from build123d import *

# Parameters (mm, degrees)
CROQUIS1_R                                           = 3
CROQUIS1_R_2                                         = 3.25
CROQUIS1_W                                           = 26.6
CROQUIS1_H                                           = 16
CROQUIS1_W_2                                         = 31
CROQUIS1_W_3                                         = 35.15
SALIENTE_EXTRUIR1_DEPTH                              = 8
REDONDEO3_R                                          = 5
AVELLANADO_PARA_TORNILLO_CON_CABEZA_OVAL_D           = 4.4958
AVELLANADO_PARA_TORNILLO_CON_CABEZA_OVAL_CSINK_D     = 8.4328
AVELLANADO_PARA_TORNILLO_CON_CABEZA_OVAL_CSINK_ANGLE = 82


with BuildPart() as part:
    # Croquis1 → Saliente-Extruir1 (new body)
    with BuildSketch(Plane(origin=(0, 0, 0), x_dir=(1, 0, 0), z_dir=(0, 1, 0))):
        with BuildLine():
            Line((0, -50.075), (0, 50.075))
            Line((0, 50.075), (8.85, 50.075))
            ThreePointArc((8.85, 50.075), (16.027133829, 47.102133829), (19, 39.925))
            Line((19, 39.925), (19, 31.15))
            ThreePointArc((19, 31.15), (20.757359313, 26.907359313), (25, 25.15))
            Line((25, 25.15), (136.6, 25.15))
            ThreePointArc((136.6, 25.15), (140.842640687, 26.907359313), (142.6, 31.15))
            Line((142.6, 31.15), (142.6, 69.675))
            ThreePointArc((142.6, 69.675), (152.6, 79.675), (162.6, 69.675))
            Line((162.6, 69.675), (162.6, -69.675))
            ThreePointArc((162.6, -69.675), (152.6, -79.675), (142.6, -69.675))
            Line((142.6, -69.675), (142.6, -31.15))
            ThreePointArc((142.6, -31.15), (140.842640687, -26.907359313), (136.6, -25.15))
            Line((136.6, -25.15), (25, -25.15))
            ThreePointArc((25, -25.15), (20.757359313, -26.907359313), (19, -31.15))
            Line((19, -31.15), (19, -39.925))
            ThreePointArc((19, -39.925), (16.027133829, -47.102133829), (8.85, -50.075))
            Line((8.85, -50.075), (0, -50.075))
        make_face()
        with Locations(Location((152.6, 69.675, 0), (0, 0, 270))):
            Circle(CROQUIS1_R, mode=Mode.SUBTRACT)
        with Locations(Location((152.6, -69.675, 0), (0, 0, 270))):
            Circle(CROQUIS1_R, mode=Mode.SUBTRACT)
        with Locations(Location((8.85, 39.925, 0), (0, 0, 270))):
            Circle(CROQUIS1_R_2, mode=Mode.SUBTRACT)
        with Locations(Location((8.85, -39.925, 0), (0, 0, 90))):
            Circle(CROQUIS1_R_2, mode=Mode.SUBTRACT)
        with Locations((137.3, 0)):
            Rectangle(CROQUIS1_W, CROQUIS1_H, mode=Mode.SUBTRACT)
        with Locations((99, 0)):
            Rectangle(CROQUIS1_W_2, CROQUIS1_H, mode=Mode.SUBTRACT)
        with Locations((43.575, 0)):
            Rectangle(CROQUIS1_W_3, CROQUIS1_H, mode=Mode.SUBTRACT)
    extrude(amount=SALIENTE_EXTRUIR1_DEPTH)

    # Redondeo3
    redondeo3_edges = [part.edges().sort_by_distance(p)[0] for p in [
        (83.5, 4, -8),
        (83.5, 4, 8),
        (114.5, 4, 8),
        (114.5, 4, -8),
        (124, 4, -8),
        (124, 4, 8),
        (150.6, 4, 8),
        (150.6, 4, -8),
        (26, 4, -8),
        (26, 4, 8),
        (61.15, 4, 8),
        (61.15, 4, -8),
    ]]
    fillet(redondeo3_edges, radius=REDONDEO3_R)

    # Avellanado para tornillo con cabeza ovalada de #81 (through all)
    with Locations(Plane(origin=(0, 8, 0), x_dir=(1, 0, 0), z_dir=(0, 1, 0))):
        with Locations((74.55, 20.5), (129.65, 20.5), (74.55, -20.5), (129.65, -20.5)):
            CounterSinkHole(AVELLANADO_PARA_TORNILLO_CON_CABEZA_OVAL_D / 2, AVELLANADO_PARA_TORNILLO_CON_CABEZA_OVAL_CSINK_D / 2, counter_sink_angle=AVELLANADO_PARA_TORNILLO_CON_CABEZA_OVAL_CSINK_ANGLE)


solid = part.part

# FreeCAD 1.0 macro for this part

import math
import FreeCAD as App
import Part
import Sketcher
from FreeCAD import Vector


def edges_at(feature, points):
    """Names of the edges that pass closest to the given points."""
    edges = feature.Shape.Edges
    near = lambda p: min(range(len(edges)), key=lambda i: edges[i].distToShape(Part.Vertex(*p))[0])
    return sorted({f"Edge{near(p) + 1}" for p in points})


def add_polygon(sketch, points):
    """Adds a closed chain of lines whose ends are joined by coincident constraints."""
    first, n = sketch.GeometryCount, len(points)
    for a, b in zip(points, points[1:] + points[:1]):
        sketch.addGeometry(Part.LineSegment(App.Vector(*a, 0), App.Vector(*b, 0)), False)
    for i in range(n):
        sketch.addConstraint(Sketcher.Constraint("Coincident", first + i, 2, first + (i + 1) % n, 1))

doc = App.newDocument("Part")
body = doc.addObject("PartDesign::Body", "Body")

sketch1 = body.newObject("Sketcher::SketchObject", "Sketch")
sketch1.AttachmentSupport = (doc.getObject("XZ_Plane"), [""])
sketch1.MapMode = "FlatFace"
sketch1.addGeometry(Part.LineSegment(Vector(0, -50.075, 0), Vector(0, 50.075, 0)), False)
sketch1.addGeometry(Part.LineSegment(Vector(0, 50.075, 0), Vector(8.85, 50.075, 0)), False)
sketch1.addGeometry(Part.ArcOfCircle(Part.Circle(Vector(8.85, 39.925, 0), Vector(0, 0, 1), 10.15), math.radians(0), math.radians(90)), False)
sketch1.addGeometry(Part.LineSegment(Vector(19, 39.925, 0), Vector(19, 31.15, 0)), False)
sketch1.addGeometry(Part.ArcOfCircle(Part.Circle(Vector(25, 31.15, 0), Vector(0, 0, 1), 6), math.radians(180), math.radians(270)), False)
sketch1.addGeometry(Part.LineSegment(Vector(25, 25.15, 0), Vector(136.6, 25.15, 0)), False)
sketch1.addGeometry(Part.ArcOfCircle(Part.Circle(Vector(136.6, 31.15, 0), Vector(0, 0, 1), 6), math.radians(-90), math.radians(0)), False)
sketch1.addGeometry(Part.LineSegment(Vector(142.6, 31.15, 0), Vector(142.6, 69.675, 0)), False)
sketch1.addGeometry(Part.ArcOfCircle(Part.Circle(Vector(152.6, 69.675, 0), Vector(0, 0, 1), 10), math.radians(0), math.radians(180)), False)
sketch1.addGeometry(Part.LineSegment(Vector(162.6, 69.675, 0), Vector(162.6, -69.675, 0)), False)
sketch1.addGeometry(Part.ArcOfCircle(Part.Circle(Vector(152.6, -69.675, 0), Vector(0, 0, 1), 10), math.radians(180), math.radians(360)), False)
sketch1.addGeometry(Part.LineSegment(Vector(142.6, -69.675, 0), Vector(142.6, -31.15, 0)), False)
sketch1.addGeometry(Part.ArcOfCircle(Part.Circle(Vector(136.6, -31.15, 0), Vector(0, 0, 1), 6), math.radians(0), math.radians(90)), False)
sketch1.addGeometry(Part.LineSegment(Vector(136.6, -25.15, 0), Vector(25, -25.15, 0)), False)
sketch1.addGeometry(Part.ArcOfCircle(Part.Circle(Vector(25, -31.15, 0), Vector(0, 0, 1), 6), math.radians(90), math.radians(180)), False)
sketch1.addGeometry(Part.LineSegment(Vector(19, -31.15, 0), Vector(19, -39.925, 0)), False)
sketch1.addGeometry(Part.ArcOfCircle(Part.Circle(Vector(8.85, -39.925, 0), Vector(0, 0, 1), 10.15), math.radians(-90), math.radians(0)), False)
sketch1.addGeometry(Part.LineSegment(Vector(8.85, -50.075, 0), Vector(0, -50.075, 0)), False)
sketch1.addGeometry(Part.Circle(Vector(152.6, 69.675, 0), Vector(0, 0, 1), 3), False)
sketch1.addGeometry(Part.Circle(Vector(8.85, 39.925, 0), Vector(0, 0, 1), 3.25), False)
add_polygon(sketch1, [(124, 8), (124, -8), (150.6, -8), (150.6, 8)])
add_polygon(sketch1, [(83.5, 8), (83.5, -8), (114.5, -8), (114.5, 8)])
sketch1.addGeometry(Part.Circle(Vector(152.6, -69.675, 0), Vector(0, 0, 1), 3), False)
add_polygon(sketch1, [(26, 8), (26, -8), (61.15, -8), (61.15, 8)])
sketch1.addGeometry(Part.Circle(Vector(8.85, -39.925, 0), Vector(0, 0, 1), 3.25), False)
sketch1.addConstraint(Sketcher.Constraint("Coincident", 0, 2, 1, 1))
sketch1.addConstraint(Sketcher.Constraint("Tangent", 1, 2, 2, 2))
sketch1.addConstraint(Sketcher.Constraint("Tangent", 2, 1, 3, 1))
sketch1.addConstraint(Sketcher.Constraint("Tangent", 3, 2, 4, 1))
sketch1.addConstraint(Sketcher.Constraint("Tangent", 4, 2, 5, 1))
sketch1.addConstraint(Sketcher.Constraint("Tangent", 5, 2, 6, 1))
sketch1.addConstraint(Sketcher.Constraint("Tangent", 6, 2, 7, 1))
sketch1.addConstraint(Sketcher.Constraint("Tangent", 7, 2, 8, 2))
sketch1.addConstraint(Sketcher.Constraint("Tangent", 8, 1, 9, 1))
sketch1.addConstraint(Sketcher.Constraint("Tangent", 9, 2, 10, 2))
sketch1.addConstraint(Sketcher.Constraint("Tangent", 10, 1, 11, 1))
sketch1.addConstraint(Sketcher.Constraint("Tangent", 11, 2, 12, 1))
sketch1.addConstraint(Sketcher.Constraint("Tangent", 12, 2, 13, 1))
sketch1.addConstraint(Sketcher.Constraint("Tangent", 13, 2, 14, 1))
sketch1.addConstraint(Sketcher.Constraint("Tangent", 14, 2, 15, 1))
sketch1.addConstraint(Sketcher.Constraint("Tangent", 15, 2, 16, 2))
sketch1.addConstraint(Sketcher.Constraint("Tangent", 16, 1, 17, 1))
sketch1.addConstraint(Sketcher.Constraint("Coincident", 17, 2, 0, 1))
sketch1.addConstraint(Sketcher.Constraint("Vertical", 0))
sketch1.addConstraint(Sketcher.Constraint("Horizontal", 1))
sketch1.addConstraint(Sketcher.Constraint("Vertical", 3))
sketch1.addConstraint(Sketcher.Constraint("Horizontal", 5))
sketch1.addConstraint(Sketcher.Constraint("Vertical", 7))
sketch1.addConstraint(Sketcher.Constraint("Vertical", 9))
sketch1.addConstraint(Sketcher.Constraint("Vertical", 11))
sketch1.addConstraint(Sketcher.Constraint("Horizontal", 13))
sketch1.addConstraint(Sketcher.Constraint("Vertical", 15))
sketch1.addConstraint(Sketcher.Constraint("Horizontal", 17))
sketch1.addConstraint(Sketcher.Constraint("Vertical", 20))
sketch1.addConstraint(Sketcher.Constraint("Horizontal", 21))
sketch1.addConstraint(Sketcher.Constraint("Vertical", 22))
sketch1.addConstraint(Sketcher.Constraint("Horizontal", 23))
sketch1.addConstraint(Sketcher.Constraint("Vertical", 24))
sketch1.addConstraint(Sketcher.Constraint("Horizontal", 25))
sketch1.addConstraint(Sketcher.Constraint("Vertical", 26))
sketch1.addConstraint(Sketcher.Constraint("Horizontal", 27))
sketch1.addConstraint(Sketcher.Constraint("Vertical", 29))
sketch1.addConstraint(Sketcher.Constraint("Horizontal", 30))
sketch1.addConstraint(Sketcher.Constraint("Vertical", 31))
sketch1.addConstraint(Sketcher.Constraint("Horizontal", 32))
sketch1.addConstraint(Sketcher.Constraint("Coincident", 18, 3, 8, 3))
sketch1.addConstraint(Sketcher.Constraint("Coincident", 19, 3, 2, 3))
sketch1.addConstraint(Sketcher.Constraint("Coincident", 28, 3, 10, 3))
sketch1.addConstraint(Sketcher.Constraint("Coincident", 33, 3, 16, 3))
sketch1.addConstraint(Sketcher.Constraint("Equal", 4, 6))
sketch1.addConstraint(Sketcher.Constraint("Equal", 8, 10))
sketch1.addConstraint(Sketcher.Constraint("Equal", 6, 12))
sketch1.addConstraint(Sketcher.Constraint("Equal", 12, 14))
sketch1.addConstraint(Sketcher.Constraint("Equal", 2, 16))
sketch1.addConstraint(Sketcher.Constraint("Equal", 18, 28))
sketch1.addConstraint(Sketcher.Constraint("Equal", 19, 33))
sketch1.addConstraint(Sketcher.Constraint("Symmetric", 0, 2, 17, 2, -1, 1))
sketch1.addConstraint(Sketcher.Constraint("Symmetric", 4, 3, 14, 3, -1))
sketch1.addConstraint(Sketcher.Constraint("Horizontal", 21, 2, 24, 2))
sketch1.addConstraint(Sketcher.Constraint("Horizontal", 23, 2, 26, 2))
sketch1.addConstraint(Sketcher.Constraint("Horizontal", 25, 2, 29, 2))
sketch1.addConstraint(Sketcher.Constraint("Horizontal", 27, 2, 31, 2))
sketch1.addConstraint(Sketcher.Constraint("Equal", 7, 11))
sketch1.addConstraint(Sketcher.Constraint("Diameter", 18, 6.0))
sketch1.addConstraint(Sketcher.Constraint("Radius", 4, 6.0))
sketch1.addConstraint(Sketcher.Constraint("Radius", 8, 10.0))
sketch1.addConstraint(Sketcher.Constraint("Diameter", 19, 6.5))
sketch1.addConstraint(Sketcher.Constraint("DistanceX", 25, 1, 25, 2, 31.0))
sketch1.addConstraint(Sketcher.Constraint("DistanceY", 20, 2, 20, 1, 16.0))
sketch1.addConstraint(Sketcher.Constraint("Radius", 2, 10.15))
sketch1.addConstraint(Sketcher.Constraint("DistanceX", 5, 1, 5, 2, 111.6))
sketch1.addConstraint(Sketcher.Constraint("DistanceX", 21, 1, 21, 2, 26.6))
sketch1.addConstraint(Sketcher.Constraint("DistanceX", -1, 1, 4, 3, 25.0))
sketch1.addConstraint(Sketcher.Constraint("DistanceX", -1, 1, 20, 2, 124.0))
sketch1.addConstraint(Sketcher.Constraint("DistanceY", 20, 2, -1, 1, 8.0))
sketch1.addConstraint(Sketcher.Constraint("DistanceX", -1, 1, 29, 2, 26.0))
sketch1.addConstraint(Sketcher.Constraint("DistanceY", 16, 3, 0, 2, 90.0))
sketch1.addConstraint(Sketcher.Constraint("DistanceX", 30, 1, 30, 2, 35.15))
sketch1.addConstraint(Sketcher.Constraint("DistanceY", 9, 2, 9, 1, 139.35))
sketch1.addConstraint(Sketcher.Constraint("DistanceX", -1, 1, 24, 2, 83.5))
sketch1.addConstraint(Sketcher.Constraint("DistanceY", 12, 3, 6, 3, 62.3))
pad1 = body.newObject("PartDesign::Pad", "Pad")
pad1.Profile = sketch1
pad1.Length = 8
pad1.Reversed = True
doc.recompute()

fillet = body.newObject("PartDesign::Fillet", "Fillet")
fillet.Base = (pad1, edges_at(pad1, [
    (83.5, 4, -8),
    (83.5, 4, 8),
    (114.5, 4, 8),
    (114.5, 4, -8),
    (124, 4, -8),
    (124, 4, 8),
    (150.6, 4, 8),
    (150.6, 4, -8),
    (26, 4, -8),
    (26, 4, 8),
    (61.15, 4, 8),
    (61.15, 4, -8),
]))
fillet.Radius = 5

sketch2 = body.newObject("Sketcher::SketchObject", "Sketch001")
sketch2.AttachmentSupport = (doc.getObject("XZ_Plane"), [""])
sketch2.MapMode = "FlatFace"
sketch2.AttachmentOffset = App.Placement(Vector(0, 0, -8), App.Rotation())
sketch2.addGeometry(Part.Circle(Vector(74.55, -20.5, 0), Vector(0, 0, 1), 2.2479), False)
sketch2.addGeometry(Part.Circle(Vector(129.65, -20.5, 0), Vector(0, 0, 1), 2.2479), False)
sketch2.addGeometry(Part.Circle(Vector(74.55, 20.5, 0), Vector(0, 0, 1), 2.2479), False)
sketch2.addGeometry(Part.Circle(Vector(129.65, 20.5, 0), Vector(0, 0, 1), 2.2479), False)
sketch2.addConstraint(Sketcher.Constraint("Equal", 0, 1))
sketch2.addConstraint(Sketcher.Constraint("Equal", 1, 2))
sketch2.addConstraint(Sketcher.Constraint("Equal", 2, 3))
sketch2.addConstraint(Sketcher.Constraint("Symmetric", 0, 3, 2, 3, -1))
sketch2.addConstraint(Sketcher.Constraint("Symmetric", 1, 3, 3, 3, -1))
sketch2.addConstraint(Sketcher.Constraint("Horizontal", 0, 3, 1, 3))
sketch2.addConstraint(Sketcher.Constraint("DistanceY", 0, 3, 2, 3, 41.0))
sketch2.addConstraint(Sketcher.Constraint("Diameter", 0, 4.4958))
sketch2.addConstraint(Sketcher.Constraint("DistanceX", 0, 3, 1, 3, 55.1))
sketch2.addConstraint(Sketcher.Constraint("DistanceX", -1, 1, 0, 3, 74.55))
doc.recompute()
hole = body.newObject("PartDesign::Hole", "Hole")
hole.Profile = sketch2
hole.ThreadType = "None"
hole.Diameter = 4.4958
hole.DepthType = "ThroughAll"
hole.HoleCutType = "Countersink"
hole.HoleCutDiameter = 8.4328
hole.HoleCutCountersinkAngle = 82
hole.Reversed = True

doc.recompute()
